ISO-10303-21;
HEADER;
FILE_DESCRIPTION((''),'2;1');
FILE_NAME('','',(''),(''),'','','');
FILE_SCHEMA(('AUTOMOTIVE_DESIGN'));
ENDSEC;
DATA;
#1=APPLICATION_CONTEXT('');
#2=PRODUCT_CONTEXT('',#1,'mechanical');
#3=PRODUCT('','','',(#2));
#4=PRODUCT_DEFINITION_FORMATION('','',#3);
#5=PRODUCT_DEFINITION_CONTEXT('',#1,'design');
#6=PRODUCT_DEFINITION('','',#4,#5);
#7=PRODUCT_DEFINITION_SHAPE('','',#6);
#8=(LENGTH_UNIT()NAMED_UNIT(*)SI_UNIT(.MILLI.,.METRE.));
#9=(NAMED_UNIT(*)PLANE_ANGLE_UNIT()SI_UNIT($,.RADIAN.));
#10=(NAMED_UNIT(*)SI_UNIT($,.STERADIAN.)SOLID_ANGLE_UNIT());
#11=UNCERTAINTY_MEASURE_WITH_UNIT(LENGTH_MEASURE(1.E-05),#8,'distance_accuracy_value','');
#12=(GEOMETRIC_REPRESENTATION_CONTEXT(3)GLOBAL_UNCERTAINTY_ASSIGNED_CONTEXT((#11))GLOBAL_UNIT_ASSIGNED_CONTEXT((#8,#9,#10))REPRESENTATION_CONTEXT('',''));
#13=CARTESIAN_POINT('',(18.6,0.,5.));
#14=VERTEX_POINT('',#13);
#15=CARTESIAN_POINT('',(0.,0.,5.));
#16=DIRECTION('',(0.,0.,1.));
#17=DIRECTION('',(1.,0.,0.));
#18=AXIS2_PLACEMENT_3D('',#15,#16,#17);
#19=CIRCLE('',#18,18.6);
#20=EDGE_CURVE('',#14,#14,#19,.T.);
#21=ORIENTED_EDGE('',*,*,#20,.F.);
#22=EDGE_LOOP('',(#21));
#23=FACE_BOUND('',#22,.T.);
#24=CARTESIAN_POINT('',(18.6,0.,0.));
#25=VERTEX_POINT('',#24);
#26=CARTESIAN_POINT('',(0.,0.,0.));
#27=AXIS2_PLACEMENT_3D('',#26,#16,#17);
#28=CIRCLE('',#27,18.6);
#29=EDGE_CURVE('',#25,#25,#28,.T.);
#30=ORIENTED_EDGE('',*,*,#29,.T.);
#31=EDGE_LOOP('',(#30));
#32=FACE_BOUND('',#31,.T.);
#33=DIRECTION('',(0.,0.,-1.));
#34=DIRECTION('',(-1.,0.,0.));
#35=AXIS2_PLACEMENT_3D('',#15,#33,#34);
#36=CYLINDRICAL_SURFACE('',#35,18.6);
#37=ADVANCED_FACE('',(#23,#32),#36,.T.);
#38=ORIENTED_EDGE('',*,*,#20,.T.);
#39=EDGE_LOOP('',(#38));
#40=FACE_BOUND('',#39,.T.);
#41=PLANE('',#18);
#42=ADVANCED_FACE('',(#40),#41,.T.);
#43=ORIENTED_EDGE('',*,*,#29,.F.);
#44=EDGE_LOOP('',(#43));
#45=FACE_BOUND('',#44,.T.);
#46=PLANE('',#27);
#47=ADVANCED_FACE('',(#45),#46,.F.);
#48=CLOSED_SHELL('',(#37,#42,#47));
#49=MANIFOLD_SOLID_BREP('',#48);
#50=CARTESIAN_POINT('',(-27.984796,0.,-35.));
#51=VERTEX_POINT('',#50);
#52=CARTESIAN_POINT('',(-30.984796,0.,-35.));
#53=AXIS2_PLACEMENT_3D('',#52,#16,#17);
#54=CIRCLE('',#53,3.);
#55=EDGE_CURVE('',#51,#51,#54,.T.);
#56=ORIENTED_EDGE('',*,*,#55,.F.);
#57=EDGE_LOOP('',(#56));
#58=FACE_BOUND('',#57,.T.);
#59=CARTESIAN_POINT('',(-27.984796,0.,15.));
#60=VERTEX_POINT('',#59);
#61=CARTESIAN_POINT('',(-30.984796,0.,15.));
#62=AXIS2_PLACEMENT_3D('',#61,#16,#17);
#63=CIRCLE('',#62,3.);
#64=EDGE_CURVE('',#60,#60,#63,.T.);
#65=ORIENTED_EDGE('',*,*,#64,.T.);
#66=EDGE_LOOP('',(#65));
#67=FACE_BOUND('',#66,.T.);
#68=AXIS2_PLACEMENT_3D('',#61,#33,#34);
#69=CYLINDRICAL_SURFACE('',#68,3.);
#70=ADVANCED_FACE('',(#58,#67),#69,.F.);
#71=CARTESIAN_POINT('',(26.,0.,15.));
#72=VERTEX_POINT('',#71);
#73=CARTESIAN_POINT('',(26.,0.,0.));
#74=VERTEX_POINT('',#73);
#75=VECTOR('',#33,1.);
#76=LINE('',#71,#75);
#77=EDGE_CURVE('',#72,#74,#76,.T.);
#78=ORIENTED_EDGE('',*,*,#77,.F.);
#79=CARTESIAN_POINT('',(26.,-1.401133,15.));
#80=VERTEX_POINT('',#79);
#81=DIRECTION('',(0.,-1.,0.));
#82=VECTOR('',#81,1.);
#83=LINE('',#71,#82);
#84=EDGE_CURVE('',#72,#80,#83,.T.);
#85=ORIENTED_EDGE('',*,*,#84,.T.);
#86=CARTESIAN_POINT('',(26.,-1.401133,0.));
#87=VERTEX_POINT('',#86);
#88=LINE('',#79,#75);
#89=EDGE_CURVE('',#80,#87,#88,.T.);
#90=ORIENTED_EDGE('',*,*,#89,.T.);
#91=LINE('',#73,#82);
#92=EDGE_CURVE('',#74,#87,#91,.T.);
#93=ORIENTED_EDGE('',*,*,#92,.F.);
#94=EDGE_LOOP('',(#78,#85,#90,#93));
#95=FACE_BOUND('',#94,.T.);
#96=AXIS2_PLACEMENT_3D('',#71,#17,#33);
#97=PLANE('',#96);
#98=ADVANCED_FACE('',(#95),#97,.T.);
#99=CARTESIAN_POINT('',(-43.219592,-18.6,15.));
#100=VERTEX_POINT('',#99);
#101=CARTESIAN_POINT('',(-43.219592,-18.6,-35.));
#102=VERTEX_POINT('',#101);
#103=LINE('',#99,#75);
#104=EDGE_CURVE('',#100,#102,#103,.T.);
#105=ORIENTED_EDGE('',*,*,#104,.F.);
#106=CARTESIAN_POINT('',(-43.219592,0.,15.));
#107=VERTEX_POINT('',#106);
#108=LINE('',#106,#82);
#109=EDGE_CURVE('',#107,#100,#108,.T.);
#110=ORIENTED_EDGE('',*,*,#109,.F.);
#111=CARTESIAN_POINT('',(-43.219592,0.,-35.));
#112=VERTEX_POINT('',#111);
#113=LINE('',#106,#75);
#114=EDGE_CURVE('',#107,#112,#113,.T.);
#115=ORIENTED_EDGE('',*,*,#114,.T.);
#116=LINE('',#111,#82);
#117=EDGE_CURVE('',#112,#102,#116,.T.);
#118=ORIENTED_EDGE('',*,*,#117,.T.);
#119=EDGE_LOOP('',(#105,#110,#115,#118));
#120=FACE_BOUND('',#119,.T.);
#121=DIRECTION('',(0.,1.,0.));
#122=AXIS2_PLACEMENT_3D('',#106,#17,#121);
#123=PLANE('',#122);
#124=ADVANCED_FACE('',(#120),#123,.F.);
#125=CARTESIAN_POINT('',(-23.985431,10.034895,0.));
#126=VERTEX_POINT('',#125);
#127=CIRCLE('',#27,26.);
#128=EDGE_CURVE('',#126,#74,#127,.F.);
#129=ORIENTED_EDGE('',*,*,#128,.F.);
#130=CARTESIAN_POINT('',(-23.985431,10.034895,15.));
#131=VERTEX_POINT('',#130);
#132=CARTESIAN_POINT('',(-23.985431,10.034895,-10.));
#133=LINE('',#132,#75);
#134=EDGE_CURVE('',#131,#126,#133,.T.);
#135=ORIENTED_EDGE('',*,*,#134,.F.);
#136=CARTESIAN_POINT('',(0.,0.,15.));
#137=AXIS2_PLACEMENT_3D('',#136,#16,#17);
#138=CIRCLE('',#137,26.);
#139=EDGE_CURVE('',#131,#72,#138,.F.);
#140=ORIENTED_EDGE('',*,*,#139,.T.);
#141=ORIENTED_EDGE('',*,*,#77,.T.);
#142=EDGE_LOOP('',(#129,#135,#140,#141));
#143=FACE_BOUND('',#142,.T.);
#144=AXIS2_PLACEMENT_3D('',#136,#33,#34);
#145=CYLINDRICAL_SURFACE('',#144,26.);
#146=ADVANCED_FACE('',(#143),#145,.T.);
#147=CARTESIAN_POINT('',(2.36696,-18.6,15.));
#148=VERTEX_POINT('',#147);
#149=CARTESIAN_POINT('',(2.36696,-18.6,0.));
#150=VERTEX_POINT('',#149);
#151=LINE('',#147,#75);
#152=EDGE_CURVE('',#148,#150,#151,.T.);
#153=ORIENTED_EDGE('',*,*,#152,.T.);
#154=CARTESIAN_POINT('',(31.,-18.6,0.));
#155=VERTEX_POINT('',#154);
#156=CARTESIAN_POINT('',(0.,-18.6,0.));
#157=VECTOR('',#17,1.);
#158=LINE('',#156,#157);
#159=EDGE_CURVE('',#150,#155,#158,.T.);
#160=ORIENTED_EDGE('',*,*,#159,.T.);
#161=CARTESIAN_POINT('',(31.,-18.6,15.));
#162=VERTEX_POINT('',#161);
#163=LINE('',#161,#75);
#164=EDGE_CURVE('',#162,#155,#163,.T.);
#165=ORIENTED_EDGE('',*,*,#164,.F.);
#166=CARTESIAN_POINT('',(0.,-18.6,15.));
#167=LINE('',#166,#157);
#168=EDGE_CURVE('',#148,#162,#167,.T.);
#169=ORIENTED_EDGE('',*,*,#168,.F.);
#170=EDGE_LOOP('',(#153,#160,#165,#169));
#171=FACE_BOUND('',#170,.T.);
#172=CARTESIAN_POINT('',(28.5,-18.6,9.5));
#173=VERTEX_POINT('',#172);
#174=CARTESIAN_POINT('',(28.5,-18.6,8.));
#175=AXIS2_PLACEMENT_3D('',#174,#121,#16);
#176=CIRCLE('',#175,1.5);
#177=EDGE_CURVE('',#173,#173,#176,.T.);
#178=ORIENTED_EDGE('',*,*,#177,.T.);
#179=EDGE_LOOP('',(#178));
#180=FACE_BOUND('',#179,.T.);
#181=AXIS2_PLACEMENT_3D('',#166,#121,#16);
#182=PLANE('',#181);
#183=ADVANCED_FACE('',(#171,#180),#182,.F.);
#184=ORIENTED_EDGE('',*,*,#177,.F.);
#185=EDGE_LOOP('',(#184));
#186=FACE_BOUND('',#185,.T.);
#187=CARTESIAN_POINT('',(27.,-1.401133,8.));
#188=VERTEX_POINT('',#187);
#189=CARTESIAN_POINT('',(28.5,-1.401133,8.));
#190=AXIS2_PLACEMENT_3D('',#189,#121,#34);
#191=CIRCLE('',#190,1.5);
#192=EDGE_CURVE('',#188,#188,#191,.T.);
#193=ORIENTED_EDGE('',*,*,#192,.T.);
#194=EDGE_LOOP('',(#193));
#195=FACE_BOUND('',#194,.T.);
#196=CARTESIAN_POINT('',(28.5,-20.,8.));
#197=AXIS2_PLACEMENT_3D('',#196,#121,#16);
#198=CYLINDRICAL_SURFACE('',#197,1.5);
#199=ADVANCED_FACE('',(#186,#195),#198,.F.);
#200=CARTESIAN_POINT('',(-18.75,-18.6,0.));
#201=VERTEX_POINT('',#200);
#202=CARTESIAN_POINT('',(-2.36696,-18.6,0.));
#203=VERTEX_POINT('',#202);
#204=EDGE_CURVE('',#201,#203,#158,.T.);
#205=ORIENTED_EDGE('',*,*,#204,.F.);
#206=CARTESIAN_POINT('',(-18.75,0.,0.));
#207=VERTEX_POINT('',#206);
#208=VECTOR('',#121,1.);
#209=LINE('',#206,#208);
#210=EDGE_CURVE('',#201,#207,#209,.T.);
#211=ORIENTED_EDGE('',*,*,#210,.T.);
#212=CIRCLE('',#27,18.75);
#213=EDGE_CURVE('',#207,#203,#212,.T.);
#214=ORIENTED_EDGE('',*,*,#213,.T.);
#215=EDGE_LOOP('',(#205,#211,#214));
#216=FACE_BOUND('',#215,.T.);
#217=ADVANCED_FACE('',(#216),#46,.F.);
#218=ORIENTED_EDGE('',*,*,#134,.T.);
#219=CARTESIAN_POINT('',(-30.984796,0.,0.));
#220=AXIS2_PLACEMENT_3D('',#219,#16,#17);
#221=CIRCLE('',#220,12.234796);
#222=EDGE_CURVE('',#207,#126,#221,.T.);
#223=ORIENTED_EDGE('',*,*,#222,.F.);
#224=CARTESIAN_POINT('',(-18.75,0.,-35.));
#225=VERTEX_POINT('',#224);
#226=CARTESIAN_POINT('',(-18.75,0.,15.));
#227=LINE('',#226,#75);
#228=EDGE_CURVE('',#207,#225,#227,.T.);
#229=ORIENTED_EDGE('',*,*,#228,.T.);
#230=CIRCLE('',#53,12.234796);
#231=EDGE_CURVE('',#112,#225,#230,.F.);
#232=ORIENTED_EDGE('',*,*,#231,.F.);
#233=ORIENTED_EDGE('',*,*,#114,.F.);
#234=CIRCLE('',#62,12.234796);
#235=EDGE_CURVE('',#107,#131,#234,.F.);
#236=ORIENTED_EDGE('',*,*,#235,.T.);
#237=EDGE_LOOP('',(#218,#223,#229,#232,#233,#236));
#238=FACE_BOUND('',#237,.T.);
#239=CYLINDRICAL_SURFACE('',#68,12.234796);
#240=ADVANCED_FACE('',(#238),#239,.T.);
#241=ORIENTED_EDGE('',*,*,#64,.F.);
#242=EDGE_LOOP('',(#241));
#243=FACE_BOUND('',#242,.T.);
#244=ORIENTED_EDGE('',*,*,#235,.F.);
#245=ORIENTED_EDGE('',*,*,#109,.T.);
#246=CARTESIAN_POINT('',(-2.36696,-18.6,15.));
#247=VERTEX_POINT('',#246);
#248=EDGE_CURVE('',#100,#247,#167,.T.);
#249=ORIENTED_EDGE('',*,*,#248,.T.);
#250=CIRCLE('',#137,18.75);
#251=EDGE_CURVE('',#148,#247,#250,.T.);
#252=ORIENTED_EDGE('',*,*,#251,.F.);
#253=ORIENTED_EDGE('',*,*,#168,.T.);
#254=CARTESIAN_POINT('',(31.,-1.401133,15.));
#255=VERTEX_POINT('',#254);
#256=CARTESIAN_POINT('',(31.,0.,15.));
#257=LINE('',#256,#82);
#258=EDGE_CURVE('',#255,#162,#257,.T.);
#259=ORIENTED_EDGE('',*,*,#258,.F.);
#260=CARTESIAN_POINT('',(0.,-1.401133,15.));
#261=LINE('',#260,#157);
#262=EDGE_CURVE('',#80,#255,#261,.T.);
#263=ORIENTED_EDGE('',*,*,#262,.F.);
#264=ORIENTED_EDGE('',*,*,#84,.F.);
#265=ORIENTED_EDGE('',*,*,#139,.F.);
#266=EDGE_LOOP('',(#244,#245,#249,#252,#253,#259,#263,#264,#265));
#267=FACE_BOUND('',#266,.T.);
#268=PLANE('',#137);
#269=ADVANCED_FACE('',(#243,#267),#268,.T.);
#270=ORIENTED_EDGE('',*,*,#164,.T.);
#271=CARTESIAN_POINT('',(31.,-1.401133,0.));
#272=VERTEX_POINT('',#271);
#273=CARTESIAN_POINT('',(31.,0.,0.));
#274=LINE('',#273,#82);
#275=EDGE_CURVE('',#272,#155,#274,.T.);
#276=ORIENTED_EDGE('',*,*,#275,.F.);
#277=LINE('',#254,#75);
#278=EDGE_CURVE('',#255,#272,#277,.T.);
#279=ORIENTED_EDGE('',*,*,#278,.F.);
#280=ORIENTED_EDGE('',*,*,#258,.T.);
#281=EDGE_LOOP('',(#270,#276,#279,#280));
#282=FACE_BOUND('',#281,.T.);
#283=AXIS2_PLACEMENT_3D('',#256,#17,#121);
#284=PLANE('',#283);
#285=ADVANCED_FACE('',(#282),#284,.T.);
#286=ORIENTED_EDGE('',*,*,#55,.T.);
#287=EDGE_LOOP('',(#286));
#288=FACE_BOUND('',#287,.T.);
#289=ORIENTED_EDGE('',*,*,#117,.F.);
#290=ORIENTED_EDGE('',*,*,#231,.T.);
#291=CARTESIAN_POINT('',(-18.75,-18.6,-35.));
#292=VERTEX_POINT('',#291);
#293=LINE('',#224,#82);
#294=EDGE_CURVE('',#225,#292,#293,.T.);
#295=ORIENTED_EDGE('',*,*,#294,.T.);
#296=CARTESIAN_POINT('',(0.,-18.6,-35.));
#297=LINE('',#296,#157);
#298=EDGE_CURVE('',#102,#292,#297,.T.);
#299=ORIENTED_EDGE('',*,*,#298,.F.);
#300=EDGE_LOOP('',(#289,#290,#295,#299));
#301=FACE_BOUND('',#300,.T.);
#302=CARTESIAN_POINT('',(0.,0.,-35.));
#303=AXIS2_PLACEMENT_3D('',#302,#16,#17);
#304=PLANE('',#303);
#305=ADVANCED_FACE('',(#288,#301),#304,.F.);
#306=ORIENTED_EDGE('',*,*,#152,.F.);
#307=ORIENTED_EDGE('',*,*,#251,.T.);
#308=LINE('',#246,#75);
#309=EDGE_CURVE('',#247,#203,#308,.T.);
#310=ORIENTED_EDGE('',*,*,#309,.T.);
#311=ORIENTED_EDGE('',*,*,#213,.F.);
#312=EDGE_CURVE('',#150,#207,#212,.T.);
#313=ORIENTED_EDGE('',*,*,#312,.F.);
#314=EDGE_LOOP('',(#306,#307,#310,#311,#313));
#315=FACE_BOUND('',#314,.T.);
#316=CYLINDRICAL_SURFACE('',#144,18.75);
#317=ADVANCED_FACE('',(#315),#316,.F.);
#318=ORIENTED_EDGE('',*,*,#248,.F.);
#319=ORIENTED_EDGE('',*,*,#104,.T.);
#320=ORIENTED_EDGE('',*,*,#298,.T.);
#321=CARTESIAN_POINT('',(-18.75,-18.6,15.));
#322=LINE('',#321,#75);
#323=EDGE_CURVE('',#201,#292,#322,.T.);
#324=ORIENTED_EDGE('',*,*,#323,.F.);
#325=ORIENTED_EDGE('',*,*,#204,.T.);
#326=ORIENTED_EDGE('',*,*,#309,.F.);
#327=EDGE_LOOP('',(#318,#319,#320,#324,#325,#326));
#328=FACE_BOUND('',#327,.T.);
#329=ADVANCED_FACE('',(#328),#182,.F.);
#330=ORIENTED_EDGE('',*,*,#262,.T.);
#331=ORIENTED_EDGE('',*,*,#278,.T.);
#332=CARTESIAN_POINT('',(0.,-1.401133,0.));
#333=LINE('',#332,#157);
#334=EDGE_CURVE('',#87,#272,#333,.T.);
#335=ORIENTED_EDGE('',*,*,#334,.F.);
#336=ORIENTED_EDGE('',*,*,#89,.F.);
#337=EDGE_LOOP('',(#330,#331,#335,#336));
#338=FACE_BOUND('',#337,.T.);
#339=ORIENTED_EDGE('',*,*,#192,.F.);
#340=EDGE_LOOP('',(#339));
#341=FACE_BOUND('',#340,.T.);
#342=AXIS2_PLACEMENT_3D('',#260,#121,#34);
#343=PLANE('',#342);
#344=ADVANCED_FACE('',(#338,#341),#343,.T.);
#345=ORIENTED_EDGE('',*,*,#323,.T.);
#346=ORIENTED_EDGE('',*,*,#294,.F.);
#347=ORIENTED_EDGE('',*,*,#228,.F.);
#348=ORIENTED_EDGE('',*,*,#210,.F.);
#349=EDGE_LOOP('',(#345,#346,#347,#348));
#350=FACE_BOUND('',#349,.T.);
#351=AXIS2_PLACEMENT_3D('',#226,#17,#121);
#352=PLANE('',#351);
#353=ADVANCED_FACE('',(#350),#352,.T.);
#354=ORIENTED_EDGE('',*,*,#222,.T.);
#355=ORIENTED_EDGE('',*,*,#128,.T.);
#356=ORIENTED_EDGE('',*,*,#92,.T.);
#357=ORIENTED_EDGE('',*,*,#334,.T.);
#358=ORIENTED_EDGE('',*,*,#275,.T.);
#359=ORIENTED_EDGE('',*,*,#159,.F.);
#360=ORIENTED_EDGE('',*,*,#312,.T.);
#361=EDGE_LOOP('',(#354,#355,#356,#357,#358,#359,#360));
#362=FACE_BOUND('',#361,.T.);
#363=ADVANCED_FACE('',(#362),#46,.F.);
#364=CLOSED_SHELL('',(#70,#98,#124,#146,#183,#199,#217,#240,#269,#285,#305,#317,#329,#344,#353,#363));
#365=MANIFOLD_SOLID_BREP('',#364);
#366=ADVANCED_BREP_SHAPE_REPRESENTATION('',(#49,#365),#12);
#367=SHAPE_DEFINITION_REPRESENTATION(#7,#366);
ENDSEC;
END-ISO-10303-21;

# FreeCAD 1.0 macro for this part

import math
import FreeCAD as App
import Part
import Sketcher
Q = App.Units.Quantity

doc = App.newDocument("Part")
body = doc.addObject("PartDesign::Body", "Body")

# Sketch on XY plane
sketch1 = body.newObject("Sketcher::SketchObject", "Sketch")
sketch1.AttachmentSupport = (doc.getObject("XY_Plane"), [""])
sketch1.MapMode = "FlatFace"
sketch1.addGeometry(Part.Circle(App.Vector(0, 0, 0), App.Vector(0, 0, 1), 18.6), False)
sketch1.addConstraint(Sketcher.Constraint("Coincident", 0, 3, -1, 1))
sketch1.addConstraint(Sketcher.Constraint("Diameter", 0, Q("37.2 mm")))
pad1 = body.newObject("PartDesign::Pad", "Pad")
pad1.Profile = sketch1
pad1.Length = 5
body2 = doc.addObject("PartDesign::Body", "Body001")

# Sketch on XY plane
sketch2 = body2.newObject("Sketcher::SketchObject", "Sketch001")
sketch2.AttachmentSupport = (doc.getObject("XY_Plane001"), [""])
sketch2.MapMode = "FlatFace"
sketch2.addGeometry(Part.ArcOfCircle(Part.Circle(App.Vector(0, 0, 0), App.Vector(0, 0, 1), 26), math.radians(0), math.radians(180)), False)
sketch2.addGeometry(Part.LineSegment(App.Vector(-26, 0, 0), App.Vector(-26, -18.6, 0)), False)
sketch2.addGeometry(Part.LineSegment(App.Vector(-26, -18.6, 0), App.Vector(-2.36696, -18.6, 0)), False)
sketch2.addGeometry(Part.ArcOfCircle(Part.Circle(App.Vector(0, 0, 0), App.Vector(0, 0, 1), 18.75), math.radians(0), math.radians(262.747753)), False)
sketch2.addGeometry(Part.ArcOfCircle(Part.Circle(App.Vector(0, 0, 0), App.Vector(0, 0, 1), 18.75), math.radians(-82.747753), math.radians(0)), False)
sketch2.addGeometry(Part.LineSegment(App.Vector(2.36696, -18.6, 0), App.Vector(31, -18.6, 0)), False)
sketch2.addGeometry(Part.LineSegment(App.Vector(31, -18.6, 0), App.Vector(31, -1.401133, 0)), False)
sketch2.addGeometry(Part.LineSegment(App.Vector(31, -1.401133, 0), App.Vector(26, -1.401133, 0)), False)
sketch2.addGeometry(Part.LineSegment(App.Vector(26, -1.401133, 0), App.Vector(26, 0, 0)), False)
sketch2.addConstraint(Sketcher.Constraint("Tangent", 0, 2, 1, 1))
sketch2.addConstraint(Sketcher.Constraint("Coincident", 1, 2, 2, 1))
sketch2.addConstraint(Sketcher.Constraint("Coincident", 2, 2, 3, 2))
sketch2.addConstraint(Sketcher.Constraint("Tangent", 3, 1, 4, 2))
sketch2.addConstraint(Sketcher.Constraint("Coincident", 4, 1, 5, 1))
sketch2.addConstraint(Sketcher.Constraint("Coincident", 5, 2, 6, 1))
sketch2.addConstraint(Sketcher.Constraint("Coincident", 6, 2, 7, 1))
sketch2.addConstraint(Sketcher.Constraint("Coincident", 7, 2, 8, 1))
sketch2.addConstraint(Sketcher.Constraint("Tangent", 8, 2, 0, 1))
sketch2.addConstraint(Sketcher.Constraint("Vertical", 1))
sketch2.addConstraint(Sketcher.Constraint("Horizontal", 2))
sketch2.addConstraint(Sketcher.Constraint("Horizontal", 5))
sketch2.addConstraint(Sketcher.Constraint("Vertical", 6))
sketch2.addConstraint(Sketcher.Constraint("Horizontal", 7))
sketch2.addConstraint(Sketcher.Constraint("Vertical", 8))
sketch2.addConstraint(Sketcher.Constraint("Coincident", 0, 3, -1, 1))
sketch2.addConstraint(Sketcher.Constraint("Coincident", 3, 3, -1, 1))
sketch2.addConstraint(Sketcher.Constraint("Equal", 3, 4))
sketch2.addConstraint(Sketcher.Constraint("PointOnObject", 3, 1, -1))
sketch2.addConstraint(Sketcher.Constraint("Horizontal", 2, 2, 4, 1))
sketch2.addConstraint(Sketcher.Constraint("Radius", 0, Q("26 mm")))
sketch2.addConstraint(Sketcher.Constraint("DistanceX", 7, 2, 7, 1, Q("5 mm")))
sketch2.addConstraint(Sketcher.Constraint("Radius", 3, Q("18.75 mm")))
sketch2.addConstraint(Sketcher.Constraint("DistanceY", 1, 2, 1, 1, Q("18.6 mm")))
sketch2.addConstraint(Sketcher.Constraint("DistanceY", 6, 1, 6, 2, Q("17.198867 mm")))
pad2 = body2.newObject("PartDesign::Pad", "Pad001")
pad2.Profile = sketch2
pad2.Length = 15

# Sketch on XZ plane
sketch3 = body2.newObject("Sketcher::SketchObject", "Sketch002")
sketch3.AttachmentSupport = (doc.getObject("XZ_Plane001"), [""])
sketch3.MapMode = "FlatFace"
sketch3.addGeometry(Part.Circle(App.Vector(-28.5, 8, 0), App.Vector(0, 0, 1), 1.5), False)
sketch3.addGeometry(Part.Circle(App.Vector(28.5, 8, 0), App.Vector(0, 0, 1), 1.5), False)
sketch3.addConstraint(Sketcher.Constraint("Equal", 0, 1))
sketch3.addConstraint(Sketcher.Constraint("Symmetric", 0, 3, 1, 3, -2))
sketch3.addConstraint(Sketcher.Constraint("Diameter", 0, Q("3 mm")))
sketch3.addConstraint(Sketcher.Constraint("DistanceY", -1, 1, 0, 3, Q("8 mm")))
sketch3.addConstraint(Sketcher.Constraint("DistanceX", 0, 3, 1, 3, Q("57 mm")))
pocket1 = body2.newObject("PartDesign::Pocket", "Pocket")
pocket1.Profile = sketch3
pocket1.Length = 20
pocket1.Reversed = True

# Sketch on XY plane
sketch4 = body2.newObject("Sketcher::SketchObject", "Sketch003")
sketch4.AttachmentSupport = (doc.getObject("XY_Plane001"), [""])
sketch4.MapMode = "FlatFace"
sketch4.AttachmentOffset = App.Placement(App.Vector(0, 0, -35), App.Rotation())
sketch4.addGeometry(Part.ArcOfCircle(Part.Circle(App.Vector(-30.984796, 0, 0), App.Vector(0, 0, 1), 12.234796), math.radians(0), math.radians(180)), False)
sketch4.addGeometry(Part.LineSegment(App.Vector(-43.219592, 0, 0), App.Vector(-43.219592, -18.6, 0)), False)
sketch4.addGeometry(Part.LineSegment(App.Vector(-43.219592, -18.6, 0), App.Vector(-18.75, -18.6, 0)), False)
sketch4.addGeometry(Part.LineSegment(App.Vector(-18.75, -18.6, 0), App.Vector(-18.75, 0, 0)), False)
sketch4.addGeometry(Part.Circle(App.Vector(-30.984796, 0, 0), App.Vector(0, 0, 1), 3), False)
sketch4.addConstraint(Sketcher.Constraint("Tangent", 0, 2, 1, 1))
sketch4.addConstraint(Sketcher.Constraint("Coincident", 1, 2, 2, 1))
sketch4.addConstraint(Sketcher.Constraint("Coincident", 2, 2, 3, 1))
sketch4.addConstraint(Sketcher.Constraint("Tangent", 3, 2, 0, 1))
sketch4.addConstraint(Sketcher.Constraint("Vertical", 1))
sketch4.addConstraint(Sketcher.Constraint("Horizontal", 2))
sketch4.addConstraint(Sketcher.Constraint("Vertical", 3))
sketch4.addConstraint(Sketcher.Constraint("Coincident", 4, 3, 0, 3))
sketch4.addConstraint(Sketcher.Constraint("PointOnObject", 0, 3, -1))
sketch4.addConstraint(Sketcher.Constraint("Diameter", 4, Q("6 mm")))
sketch4.addConstraint(Sketcher.Constraint("DistanceY", 1, 2, 1, 1, Q("18.6 mm")))
sketch4.addConstraint(Sketcher.Constraint("DistanceX", 2, 2, -1, 1, Q("18.75 mm")))
sketch4.addConstraint(Sketcher.Constraint("Radius", 0, Q("12.234796 mm")))
pad3 = body2.newObject("PartDesign::Pad", "Pad002")
pad3.Profile = sketch4
pad3.Length = 50

doc.recompute()
